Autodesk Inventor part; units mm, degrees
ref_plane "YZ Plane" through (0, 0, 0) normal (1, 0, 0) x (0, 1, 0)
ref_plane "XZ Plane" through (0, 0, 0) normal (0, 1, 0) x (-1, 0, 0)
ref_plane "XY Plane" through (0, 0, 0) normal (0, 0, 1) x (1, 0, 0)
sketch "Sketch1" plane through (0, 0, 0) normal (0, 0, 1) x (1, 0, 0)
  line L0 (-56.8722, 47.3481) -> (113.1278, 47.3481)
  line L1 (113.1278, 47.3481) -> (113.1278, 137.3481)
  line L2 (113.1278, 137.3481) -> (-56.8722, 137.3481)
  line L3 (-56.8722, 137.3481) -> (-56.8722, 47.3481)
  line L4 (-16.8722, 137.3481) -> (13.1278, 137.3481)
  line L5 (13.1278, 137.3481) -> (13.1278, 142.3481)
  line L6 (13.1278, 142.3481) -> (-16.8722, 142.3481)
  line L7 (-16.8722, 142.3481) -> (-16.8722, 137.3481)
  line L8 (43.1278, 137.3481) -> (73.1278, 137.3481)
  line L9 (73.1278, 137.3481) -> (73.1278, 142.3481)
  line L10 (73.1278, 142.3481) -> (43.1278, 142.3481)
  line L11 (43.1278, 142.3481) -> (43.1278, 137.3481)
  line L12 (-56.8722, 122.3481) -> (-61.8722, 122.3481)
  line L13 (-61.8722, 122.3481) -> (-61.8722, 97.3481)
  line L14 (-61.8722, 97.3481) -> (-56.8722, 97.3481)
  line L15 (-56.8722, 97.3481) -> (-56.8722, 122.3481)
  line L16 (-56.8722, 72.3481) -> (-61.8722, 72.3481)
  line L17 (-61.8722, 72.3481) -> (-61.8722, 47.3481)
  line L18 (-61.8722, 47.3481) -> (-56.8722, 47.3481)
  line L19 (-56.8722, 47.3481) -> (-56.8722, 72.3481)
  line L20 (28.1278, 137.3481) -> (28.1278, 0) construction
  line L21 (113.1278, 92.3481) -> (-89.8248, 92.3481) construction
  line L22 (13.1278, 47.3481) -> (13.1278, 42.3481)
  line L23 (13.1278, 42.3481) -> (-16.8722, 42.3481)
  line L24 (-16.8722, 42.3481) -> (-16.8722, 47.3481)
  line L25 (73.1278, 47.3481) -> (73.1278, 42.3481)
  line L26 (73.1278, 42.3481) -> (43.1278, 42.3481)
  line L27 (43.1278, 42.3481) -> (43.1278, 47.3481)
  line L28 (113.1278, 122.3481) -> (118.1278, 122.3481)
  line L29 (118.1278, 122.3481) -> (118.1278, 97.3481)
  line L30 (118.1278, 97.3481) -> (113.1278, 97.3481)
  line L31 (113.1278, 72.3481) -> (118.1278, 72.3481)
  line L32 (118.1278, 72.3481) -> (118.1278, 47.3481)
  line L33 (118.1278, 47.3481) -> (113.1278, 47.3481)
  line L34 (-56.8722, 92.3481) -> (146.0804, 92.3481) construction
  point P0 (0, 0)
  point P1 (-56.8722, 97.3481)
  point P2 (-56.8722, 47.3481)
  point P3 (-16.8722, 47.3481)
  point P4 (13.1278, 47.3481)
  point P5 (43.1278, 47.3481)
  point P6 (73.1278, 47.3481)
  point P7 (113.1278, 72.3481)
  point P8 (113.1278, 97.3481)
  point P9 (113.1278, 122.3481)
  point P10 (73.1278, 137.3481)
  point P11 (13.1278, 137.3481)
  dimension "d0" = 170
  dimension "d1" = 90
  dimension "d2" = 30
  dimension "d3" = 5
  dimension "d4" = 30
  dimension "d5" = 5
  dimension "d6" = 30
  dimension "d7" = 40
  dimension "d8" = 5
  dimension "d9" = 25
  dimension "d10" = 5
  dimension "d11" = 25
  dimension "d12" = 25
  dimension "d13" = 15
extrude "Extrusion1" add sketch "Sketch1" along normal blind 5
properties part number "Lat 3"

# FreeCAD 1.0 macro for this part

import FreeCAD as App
import Part
import Sketcher
Q = App.Units.Quantity

doc = App.newDocument("Part")
params = doc.addObject("Spreadsheet::Sheet", "Params")
for row, (alias, value) in enumerate([
    ("sketch1_width", "5 mm"),
    ("sketch1_width2", "30 mm"),
    ("sketch1_width3", "40 mm"),
    ("sketch1_height", "25 mm"),
    ("sketch1_height2", "15 mm"),
    ("pad1_length", "5 mm"),
], start=1):
    params.set(f"A{row}", alias)
    params.set(f"B{row}", "=" + value)
    params.setAlias(f"B{row}", alias)

body = doc.addObject("PartDesign::Body", "Body")

# Sketch on XY plane
sketch1 = doc.addObject("Sketcher::SketchObject", "Sketch")
body.addObject(sketch1)
sketch1.AttachmentSupport = (doc.XY_Plane, [""])
sketch1.MapMode = "FlatFace"
sketch1.addGeometry(Part.LineSegment(App.Vector(-57, 97, 0), App.Vector(-57, 72, 0)), False)
sketch1.addGeometry(Part.LineSegment(App.Vector(-57, 72, 0), App.Vector(-62, 72, 0)), False)
sketch1.addGeometry(Part.LineSegment(App.Vector(-62, 72, 0), App.Vector(-62, 47, 0)), False)
sketch1.addGeometry(Part.LineSegment(App.Vector(-62, 47, 0), App.Vector(-17, 47, 0)), False)
sketch1.addGeometry(Part.LineSegment(App.Vector(-17, 47, 0), App.Vector(-17, 42, 0)), False)
sketch1.addGeometry(Part.LineSegment(App.Vector(-17, 42, 0), App.Vector(13, 42, 0)), False)
sketch1.addGeometry(Part.LineSegment(App.Vector(13, 42, 0), App.Vector(13, 47, 0)), False)
sketch1.addGeometry(Part.LineSegment(App.Vector(13, 47, 0), App.Vector(43, 47, 0)), False)
sketch1.addGeometry(Part.LineSegment(App.Vector(43, 47, 0), App.Vector(43, 42, 0)), False)
sketch1.addGeometry(Part.LineSegment(App.Vector(43, 42, 0), App.Vector(73, 42, 0)), False)
sketch1.addGeometry(Part.LineSegment(App.Vector(73, 42, 0), App.Vector(73, 47, 0)), False)
sketch1.addGeometry(Part.LineSegment(App.Vector(73, 47, 0), App.Vector(118, 47, 0)), False)
sketch1.addGeometry(Part.LineSegment(App.Vector(118, 47, 0), App.Vector(118, 72, 0)), False)
sketch1.addGeometry(Part.LineSegment(App.Vector(118, 72, 0), App.Vector(113, 72, 0)), False)
sketch1.addGeometry(Part.LineSegment(App.Vector(113, 72, 0), App.Vector(113, 97, 0)), False)
sketch1.addGeometry(Part.LineSegment(App.Vector(113, 97, 0), App.Vector(118, 97, 0)), False)
sketch1.addGeometry(Part.LineSegment(App.Vector(118, 97, 0), App.Vector(118, 122, 0)), False)
sketch1.addGeometry(Part.LineSegment(App.Vector(118, 122, 0), App.Vector(113, 122, 0)), False)
sketch1.addGeometry(Part.LineSegment(App.Vector(113, 122, 0), App.Vector(113, 137, 0)), False)
sketch1.addGeometry(Part.LineSegment(App.Vector(113, 137, 0), App.Vector(73, 137, 0)), False)
sketch1.addGeometry(Part.LineSegment(App.Vector(73, 137, 0), App.Vector(73, 142, 0)), False)
sketch1.addGeometry(Part.LineSegment(App.Vector(73, 142, 0), App.Vector(43, 142, 0)), False)
sketch1.addGeometry(Part.LineSegment(App.Vector(43, 142, 0), App.Vector(43, 137, 0)), False)
sketch1.addGeometry(Part.LineSegment(App.Vector(43, 137, 0), App.Vector(13, 137, 0)), False)
sketch1.addGeometry(Part.LineSegment(App.Vector(13, 137, 0), App.Vector(13, 142, 0)), False)
sketch1.addGeometry(Part.LineSegment(App.Vector(13, 142, 0), App.Vector(-17, 142, 0)), False)
sketch1.addGeometry(Part.LineSegment(App.Vector(-17, 142, 0), App.Vector(-17, 137, 0)), False)
sketch1.addGeometry(Part.LineSegment(App.Vector(-17, 137, 0), App.Vector(-57, 137, 0)), False)
sketch1.addGeometry(Part.LineSegment(App.Vector(-57, 137, 0), App.Vector(-57, 122, 0)), False)
sketch1.addGeometry(Part.LineSegment(App.Vector(-57, 122, 0), App.Vector(-62, 122, 0)), False)
sketch1.addGeometry(Part.LineSegment(App.Vector(-62, 122, 0), App.Vector(-62, 97, 0)), False)
sketch1.addGeometry(Part.LineSegment(App.Vector(-62, 97, 0), App.Vector(-57, 97, 0)), False)
sketch1.addConstraint(Sketcher.Constraint("Coincident", 0, 2, 1, 1))
sketch1.addConstraint(Sketcher.Constraint("Coincident", 1, 2, 2, 1))
sketch1.addConstraint(Sketcher.Constraint("Coincident", 2, 2, 3, 1))
sketch1.addConstraint(Sketcher.Constraint("Coincident", 3, 2, 4, 1))
sketch1.addConstraint(Sketcher.Constraint("Coincident", 4, 2, 5, 1))
sketch1.addConstraint(Sketcher.Constraint("Coincident", 5, 2, 6, 1))
sketch1.addConstraint(Sketcher.Constraint("Coincident", 6, 2, 7, 1))
sketch1.addConstraint(Sketcher.Constraint("Coincident", 7, 2, 8, 1))
sketch1.addConstraint(Sketcher.Constraint("Coincident", 8, 2, 9, 1))
sketch1.addConstraint(Sketcher.Constraint("Coincident", 9, 2, 10, 1))
sketch1.addConstraint(Sketcher.Constraint("Coincident", 10, 2, 11, 1))
sketch1.addConstraint(Sketcher.Constraint("Coincident", 11, 2, 12, 1))
sketch1.addConstraint(Sketcher.Constraint("Coincident", 12, 2, 13, 1))
sketch1.addConstraint(Sketcher.Constraint("Coincident", 13, 2, 14, 1))
sketch1.addConstraint(Sketcher.Constraint("Coincident", 14, 2, 15, 1))
sketch1.addConstraint(Sketcher.Constraint("Coincident", 15, 2, 16, 1))
sketch1.addConstraint(Sketcher.Constraint("Coincident", 16, 2, 17, 1))
sketch1.addConstraint(Sketcher.Constraint("Coincident", 17, 2, 18, 1))
sketch1.addConstraint(Sketcher.Constraint("Coincident", 18, 2, 19, 1))
sketch1.addConstraint(Sketcher.Constraint("Coincident", 19, 2, 20, 1))
sketch1.addConstraint(Sketcher.Constraint("Coincident", 20, 2, 21, 1))
sketch1.addConstraint(Sketcher.Constraint("Coincident", 21, 2, 22, 1))
sketch1.addConstraint(Sketcher.Constraint("Coincident", 22, 2, 23, 1))
sketch1.addConstraint(Sketcher.Constraint("Coincident", 23, 2, 24, 1))
sketch1.addConstraint(Sketcher.Constraint("Coincident", 24, 2, 25, 1))
sketch1.addConstraint(Sketcher.Constraint("Coincident", 25, 2, 26, 1))
sketch1.addConstraint(Sketcher.Constraint("Coincident", 26, 2, 27, 1))
sketch1.addConstraint(Sketcher.Constraint("Coincident", 27, 2, 28, 1))
sketch1.addConstraint(Sketcher.Constraint("Coincident", 28, 2, 29, 1))
sketch1.addConstraint(Sketcher.Constraint("Coincident", 29, 2, 30, 1))
sketch1.addConstraint(Sketcher.Constraint("Coincident", 30, 2, 31, 1))
sketch1.addConstraint(Sketcher.Constraint("Coincident", 31, 2, 0, 1))
sketch1.addConstraint(Sketcher.Constraint("Vertical", 0))
sketch1.addConstraint(Sketcher.Constraint("Horizontal", 1))
sketch1.addConstraint(Sketcher.Constraint("Vertical", 2))
sketch1.addConstraint(Sketcher.Constraint("Horizontal", 3))
sketch1.addConstraint(Sketcher.Constraint("Vertical", 4))
sketch1.addConstraint(Sketcher.Constraint("Horizontal", 5))
sketch1.addConstraint(Sketcher.Constraint("Vertical", 6))
sketch1.addConstraint(Sketcher.Constraint("Horizontal", 7))
sketch1.addConstraint(Sketcher.Constraint("Vertical", 8))
sketch1.addConstraint(Sketcher.Constraint("Horizontal", 9))
sketch1.addConstraint(Sketcher.Constraint("Vertical", 10))
sketch1.addConstraint(Sketcher.Constraint("Horizontal", 11))
sketch1.addConstraint(Sketcher.Constraint("Vertical", 12))
sketch1.addConstraint(Sketcher.Constraint("Horizontal", 13))
sketch1.addConstraint(Sketcher.Constraint("Vertical", 14))
sketch1.addConstraint(Sketcher.Constraint("Horizontal", 15))
sketch1.addConstraint(Sketcher.Constraint("Vertical", 16))
sketch1.addConstraint(Sketcher.Constraint("Horizontal", 17))
sketch1.addConstraint(Sketcher.Constraint("Vertical", 18))
sketch1.addConstraint(Sketcher.Constraint("Horizontal", 19))
sketch1.addConstraint(Sketcher.Constraint("Vertical", 20))
sketch1.addConstraint(Sketcher.Constraint("Horizontal", 21))
sketch1.addConstraint(Sketcher.Constraint("Vertical", 22))
sketch1.addConstraint(Sketcher.Constraint("Horizontal", 23))
sketch1.addConstraint(Sketcher.Constraint("Vertical", 24))
sketch1.addConstraint(Sketcher.Constraint("Horizontal", 25))
sketch1.addConstraint(Sketcher.Constraint("Vertical", 26))
sketch1.addConstraint(Sketcher.Constraint("Horizontal", 27))
sketch1.addConstraint(Sketcher.Constraint("Vertical", 28))
sketch1.addConstraint(Sketcher.Constraint("Horizontal", 29))
sketch1.addConstraint(Sketcher.Constraint("Vertical", 30))
sketch1.addConstraint(Sketcher.Constraint("Horizontal", 31))
sketch1.addConstraint(Sketcher.Constraint("Horizontal", 3, 2, 6, 2))
sketch1.addConstraint(Sketcher.Constraint("Horizontal", 5, 2, 8, 2))
sketch1.addConstraint(Sketcher.Constraint("Horizontal", 7, 2, 10, 2))
sketch1.addConstraint(Sketcher.Constraint("Horizontal", 1, 2, 12, 2))
sketch1.addConstraint(Sketcher.Constraint("Horizontal", 19, 2, 22, 2))
sketch1.addConstraint(Sketcher.Constraint("Horizontal", 21, 2, 24, 2))
sketch1.addConstraint(Sketcher.Constraint("Horizontal", 23, 2, 26, 2))
sketch1.addConstraint(Sketcher.Constraint("Horizontal", 17, 2, 28, 2))
sketch1.addConstraint(Sketcher.Constraint("Horizontal", 15, 2, 30, 2))
sketch1.addConstraint(Sketcher.Constraint("Vertical", 12, 2, 15, 2))
sketch1.addConstraint(Sketcher.Constraint("Vertical", 14, 2, 17, 2))
sketch1.addConstraint(Sketcher.Constraint("Vertical", 10, 2, 19, 2))
sketch1.addConstraint(Sketcher.Constraint("Vertical", 8, 2, 21, 2))
sketch1.addConstraint(Sketcher.Constraint("Vertical", 6, 2, 23, 2))
sketch1.addConstraint(Sketcher.Constraint("Vertical", 4, 2, 25, 2))
sketch1.addConstraint(Sketcher.Constraint("Vertical", 0, 2, 27, 2))
sketch1.addConstraint(Sketcher.Constraint("Vertical", 2, 2, 29, 2))
sketch1.addConstraint(Sketcher.Constraint("Equal", 5, 7))
sketch1.addConstraint(Sketcher.Constraint("Equal", 7, 9))
sketch1.addConstraint(Sketcher.Constraint("Equal", 3, 11))
sketch1.addConstraint(Sketcher.Constraint("Equal", 1, 13))
sketch1.addConstraint(Sketcher.Constraint("Equal", 0, 2))
sketch1.addConstraint(Sketcher.Constraint("Equal", 31, 4))
sketch1.addConstraint(Sketcher.Constraint("Equal", 14, 16))
sketch1.addConstraint(Sketcher.Constraint("Equal", 10, 20))
sketch1.addConstraint(Sketcher.Constraint("DistanceX", 1, 2, 1, 1, Q("5 mm")))
sketch1.addConstraint(Sketcher.Constraint("DistanceX", 5, 1, 5, 2, Q("30 mm")))
sketch1.addConstraint(Sketcher.Constraint("DistanceX", 19, 2, 19, 1, Q("40 mm")))
sketch1.addConstraint(Sketcher.Constraint("DistanceY", 0, 2, 0, 1, Q("25 mm")))
sketch1.addConstraint(Sketcher.Constraint("DistanceY", 18, 1, 18, 2, Q("15 mm")))
sketch1.addConstraint(Sketcher.Constraint("DistanceY", -1, 1, 0, 2, Q("72.348 mm")))
sketch1.addConstraint(Sketcher.Constraint("DistanceX", 0, 2, -1, 1, Q("56.8722 mm")))
sketch1.setExpression("Constraints[89]", "Params.sketch1_width")
sketch1.setExpression("Constraints[90]", "Params.sketch1_width2")
sketch1.setExpression("Constraints[91]", "Params.sketch1_width3")
sketch1.setExpression("Constraints[92]", "Params.sketch1_height")
sketch1.setExpression("Constraints[93]", "Params.sketch1_height2")
pad1 = doc.addObject("PartDesign::Pad", "Pad")
body.addObject(pad1)
pad1.Profile = sketch1
pad1.setExpression("Length", "Params.pad1_length")

doc.recompute()
